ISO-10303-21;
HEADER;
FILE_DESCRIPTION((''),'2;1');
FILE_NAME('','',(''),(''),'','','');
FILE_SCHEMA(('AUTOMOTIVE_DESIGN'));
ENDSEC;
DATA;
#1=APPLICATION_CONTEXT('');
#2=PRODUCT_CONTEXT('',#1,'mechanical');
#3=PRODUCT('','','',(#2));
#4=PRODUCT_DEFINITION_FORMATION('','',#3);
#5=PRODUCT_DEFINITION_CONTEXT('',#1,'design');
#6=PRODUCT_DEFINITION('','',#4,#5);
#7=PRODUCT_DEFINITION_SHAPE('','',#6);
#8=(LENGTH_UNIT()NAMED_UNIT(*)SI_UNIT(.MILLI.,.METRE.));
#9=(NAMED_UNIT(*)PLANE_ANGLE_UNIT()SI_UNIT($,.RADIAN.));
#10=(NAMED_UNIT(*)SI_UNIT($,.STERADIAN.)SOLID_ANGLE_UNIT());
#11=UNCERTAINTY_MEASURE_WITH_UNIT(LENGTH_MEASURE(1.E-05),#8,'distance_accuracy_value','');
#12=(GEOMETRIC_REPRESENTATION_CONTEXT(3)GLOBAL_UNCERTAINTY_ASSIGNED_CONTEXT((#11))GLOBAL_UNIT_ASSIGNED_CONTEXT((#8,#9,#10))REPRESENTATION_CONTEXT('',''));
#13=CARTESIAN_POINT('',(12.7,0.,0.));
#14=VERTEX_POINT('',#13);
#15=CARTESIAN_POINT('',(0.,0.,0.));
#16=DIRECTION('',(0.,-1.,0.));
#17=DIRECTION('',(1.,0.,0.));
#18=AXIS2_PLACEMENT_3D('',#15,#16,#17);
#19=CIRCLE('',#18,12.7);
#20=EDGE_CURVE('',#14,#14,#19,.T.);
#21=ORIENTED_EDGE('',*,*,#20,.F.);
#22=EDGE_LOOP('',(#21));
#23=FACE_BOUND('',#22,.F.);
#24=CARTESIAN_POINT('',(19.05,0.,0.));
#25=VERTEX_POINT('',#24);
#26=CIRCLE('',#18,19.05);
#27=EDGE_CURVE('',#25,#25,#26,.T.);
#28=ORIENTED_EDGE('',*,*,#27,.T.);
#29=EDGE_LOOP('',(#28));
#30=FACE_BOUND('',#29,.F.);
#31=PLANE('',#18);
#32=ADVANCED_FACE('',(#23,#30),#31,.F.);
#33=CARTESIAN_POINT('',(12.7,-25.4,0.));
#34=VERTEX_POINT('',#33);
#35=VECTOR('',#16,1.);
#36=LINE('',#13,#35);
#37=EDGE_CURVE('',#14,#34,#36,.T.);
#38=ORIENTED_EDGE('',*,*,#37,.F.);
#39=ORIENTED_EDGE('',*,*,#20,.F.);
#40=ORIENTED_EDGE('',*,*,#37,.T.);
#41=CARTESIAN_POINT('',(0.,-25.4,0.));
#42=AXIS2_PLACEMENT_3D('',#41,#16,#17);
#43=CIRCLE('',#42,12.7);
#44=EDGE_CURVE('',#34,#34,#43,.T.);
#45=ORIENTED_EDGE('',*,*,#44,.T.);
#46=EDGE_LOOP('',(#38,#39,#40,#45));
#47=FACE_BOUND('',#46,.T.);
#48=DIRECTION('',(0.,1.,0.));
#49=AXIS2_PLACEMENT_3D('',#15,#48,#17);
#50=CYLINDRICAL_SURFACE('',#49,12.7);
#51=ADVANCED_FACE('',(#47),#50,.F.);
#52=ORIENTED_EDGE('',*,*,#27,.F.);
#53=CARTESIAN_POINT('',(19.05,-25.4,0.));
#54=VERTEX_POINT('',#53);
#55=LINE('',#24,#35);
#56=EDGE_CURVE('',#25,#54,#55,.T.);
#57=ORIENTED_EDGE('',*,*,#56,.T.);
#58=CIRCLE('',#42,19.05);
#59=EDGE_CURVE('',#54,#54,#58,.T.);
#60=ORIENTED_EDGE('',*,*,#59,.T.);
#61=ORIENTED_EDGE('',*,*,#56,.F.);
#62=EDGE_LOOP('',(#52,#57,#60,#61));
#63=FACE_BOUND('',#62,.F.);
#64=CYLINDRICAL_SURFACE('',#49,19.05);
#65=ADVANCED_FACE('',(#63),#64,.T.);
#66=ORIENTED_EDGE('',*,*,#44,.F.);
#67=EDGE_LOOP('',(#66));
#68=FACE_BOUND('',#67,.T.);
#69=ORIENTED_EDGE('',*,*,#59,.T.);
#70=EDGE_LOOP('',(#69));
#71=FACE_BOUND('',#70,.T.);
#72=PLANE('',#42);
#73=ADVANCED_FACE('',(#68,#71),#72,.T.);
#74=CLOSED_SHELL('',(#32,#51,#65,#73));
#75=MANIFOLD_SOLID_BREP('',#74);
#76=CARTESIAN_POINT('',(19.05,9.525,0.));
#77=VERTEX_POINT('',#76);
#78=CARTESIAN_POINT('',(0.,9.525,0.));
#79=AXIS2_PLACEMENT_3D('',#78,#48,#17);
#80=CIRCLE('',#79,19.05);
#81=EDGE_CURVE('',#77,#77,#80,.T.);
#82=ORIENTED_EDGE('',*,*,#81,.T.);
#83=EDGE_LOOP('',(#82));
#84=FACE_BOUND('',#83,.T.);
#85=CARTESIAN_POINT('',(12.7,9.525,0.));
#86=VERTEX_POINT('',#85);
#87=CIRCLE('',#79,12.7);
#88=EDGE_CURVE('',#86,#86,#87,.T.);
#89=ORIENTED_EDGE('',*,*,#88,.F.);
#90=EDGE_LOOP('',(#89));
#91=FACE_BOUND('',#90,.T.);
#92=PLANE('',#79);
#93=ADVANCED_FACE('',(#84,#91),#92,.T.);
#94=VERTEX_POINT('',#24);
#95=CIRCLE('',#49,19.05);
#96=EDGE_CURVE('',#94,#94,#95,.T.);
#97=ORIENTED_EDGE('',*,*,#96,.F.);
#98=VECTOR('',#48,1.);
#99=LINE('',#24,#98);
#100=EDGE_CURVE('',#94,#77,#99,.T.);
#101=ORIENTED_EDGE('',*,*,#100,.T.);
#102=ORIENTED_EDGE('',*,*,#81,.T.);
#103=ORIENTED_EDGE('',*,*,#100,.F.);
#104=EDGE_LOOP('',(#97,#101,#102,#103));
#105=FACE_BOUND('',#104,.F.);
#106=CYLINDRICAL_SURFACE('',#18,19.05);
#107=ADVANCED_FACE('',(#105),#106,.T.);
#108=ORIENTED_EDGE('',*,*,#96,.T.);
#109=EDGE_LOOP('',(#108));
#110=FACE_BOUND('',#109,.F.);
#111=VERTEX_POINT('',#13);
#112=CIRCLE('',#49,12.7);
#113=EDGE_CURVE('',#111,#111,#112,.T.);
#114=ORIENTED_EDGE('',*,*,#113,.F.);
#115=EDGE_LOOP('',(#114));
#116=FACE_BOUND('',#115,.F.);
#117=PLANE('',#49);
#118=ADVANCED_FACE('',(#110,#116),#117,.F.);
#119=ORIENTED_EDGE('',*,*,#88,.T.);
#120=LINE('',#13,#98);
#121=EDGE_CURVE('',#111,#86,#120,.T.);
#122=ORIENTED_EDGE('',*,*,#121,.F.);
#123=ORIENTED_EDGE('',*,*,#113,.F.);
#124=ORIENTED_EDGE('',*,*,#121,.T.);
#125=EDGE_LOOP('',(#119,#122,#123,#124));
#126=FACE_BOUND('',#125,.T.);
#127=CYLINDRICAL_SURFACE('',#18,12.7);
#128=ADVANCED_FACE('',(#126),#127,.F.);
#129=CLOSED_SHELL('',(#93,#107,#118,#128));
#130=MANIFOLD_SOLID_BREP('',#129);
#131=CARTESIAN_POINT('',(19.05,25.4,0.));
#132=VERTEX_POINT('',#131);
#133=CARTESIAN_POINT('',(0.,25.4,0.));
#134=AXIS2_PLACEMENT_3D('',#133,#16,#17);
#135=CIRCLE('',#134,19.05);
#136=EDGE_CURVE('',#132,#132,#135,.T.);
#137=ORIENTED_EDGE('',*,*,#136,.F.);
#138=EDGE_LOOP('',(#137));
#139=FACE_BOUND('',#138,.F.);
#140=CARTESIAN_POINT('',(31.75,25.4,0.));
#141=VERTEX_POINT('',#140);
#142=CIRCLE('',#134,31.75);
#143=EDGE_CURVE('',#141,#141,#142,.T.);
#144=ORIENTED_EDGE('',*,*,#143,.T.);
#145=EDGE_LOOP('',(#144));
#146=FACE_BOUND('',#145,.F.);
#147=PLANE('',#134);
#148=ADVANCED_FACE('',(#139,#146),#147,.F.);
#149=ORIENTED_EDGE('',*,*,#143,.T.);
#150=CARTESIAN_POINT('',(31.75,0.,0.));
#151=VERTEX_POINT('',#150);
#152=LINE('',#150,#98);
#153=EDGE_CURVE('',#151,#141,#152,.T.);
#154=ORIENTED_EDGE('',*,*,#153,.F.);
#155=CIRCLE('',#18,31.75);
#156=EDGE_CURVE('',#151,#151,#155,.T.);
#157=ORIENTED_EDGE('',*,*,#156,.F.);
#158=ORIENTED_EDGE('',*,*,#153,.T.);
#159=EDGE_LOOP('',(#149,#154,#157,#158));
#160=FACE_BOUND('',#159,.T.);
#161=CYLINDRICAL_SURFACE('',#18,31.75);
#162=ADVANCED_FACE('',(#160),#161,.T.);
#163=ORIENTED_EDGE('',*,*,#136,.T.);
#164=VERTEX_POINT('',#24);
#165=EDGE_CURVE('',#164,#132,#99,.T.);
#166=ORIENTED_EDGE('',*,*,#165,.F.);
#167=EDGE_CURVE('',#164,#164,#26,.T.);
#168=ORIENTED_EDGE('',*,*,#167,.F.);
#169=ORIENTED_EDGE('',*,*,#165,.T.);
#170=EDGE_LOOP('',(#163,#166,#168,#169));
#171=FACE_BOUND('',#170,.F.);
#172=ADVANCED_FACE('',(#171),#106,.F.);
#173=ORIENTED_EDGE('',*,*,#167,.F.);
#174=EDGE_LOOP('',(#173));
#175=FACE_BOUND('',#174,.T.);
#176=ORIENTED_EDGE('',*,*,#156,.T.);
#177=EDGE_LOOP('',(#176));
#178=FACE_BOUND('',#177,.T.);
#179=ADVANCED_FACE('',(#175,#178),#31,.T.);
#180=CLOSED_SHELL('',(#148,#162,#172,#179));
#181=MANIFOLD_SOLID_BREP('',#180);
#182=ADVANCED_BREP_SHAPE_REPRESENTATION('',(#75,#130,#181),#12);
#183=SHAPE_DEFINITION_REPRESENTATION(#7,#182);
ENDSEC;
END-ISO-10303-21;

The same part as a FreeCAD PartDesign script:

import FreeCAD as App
import Part
import Sketcher
from FreeCAD import Vector
Q = App.Units.Quantity

doc = App.newDocument("Part")
params = doc.addObject("Spreadsheet::Sheet", "Params")
for row, (alias, value) in enumerate([
    ("sketch1_diameter", "1 in"),
    ("sketch1_diameter2", "1.5 in"),
    ("pad1_length", "1 in"),
    ("sketch2_diameter", "2.5 in"),
    ("sketch2_diameter2", "1.5 in"),
    ("pad2_length", "1 in"),
    ("sketch3_diameter", "1 in"),
    ("sketch3_diameter2", "1.5 in"),
    ("pad3_length", "0.375 in"),
], start=1):
    params.set(f"A{row}", alias)
    params.set(f"B{row}", "=" + value)
    params.setAlias(f"B{row}", alias)

body = doc.addObject("PartDesign::Body", "Body")
body.AllowCompound = True

# Sketch on XZ plane
sketch1 = body.newObject("Sketcher::SketchObject", "Sketch")
sketch1.AttachmentSupport = (doc.getObject("XZ_Plane"), [""])
sketch1.MapMode = "FlatFace"
sketch1.addGeometry(Part.Circle(Vector(0, 0, 0), Vector(0, 0, 1), 19), False)
sketch1.addGeometry(Part.Circle(Vector(0, 0, 0), Vector(0, 0, 1), 13), False)
sketch1.addConstraint(Sketcher.Constraint("Coincident", 0, 3, -1, 1))
sketch1.addConstraint(Sketcher.Constraint("Coincident", 1, 3, -1, 1))
sketch1.addConstraint(Sketcher.Constraint("Diameter", 1, Q("1 in")))
sketch1.addConstraint(Sketcher.Constraint("Diameter", 0, Q("1.5 in")))
sketch1.setExpression("Constraints[2]", "Params.sketch1_diameter")
sketch1.setExpression("Constraints[3]", "Params.sketch1_diameter2")
pad1 = body.newObject("PartDesign::Pad", "Pad")
pad1.Profile = sketch1
pad1.setExpression("Length", "Params.pad1_length")

# Sketch on XZ plane
sketch2 = body.newObject("Sketcher::SketchObject", "Sketch001")
sketch2.AttachmentSupport = (doc.getObject("XZ_Plane"), [""])
sketch2.MapMode = "FlatFace"
sketch2.addGeometry(Part.Circle(Vector(0, 0, 0), Vector(0, 0, 1), 32), False)
sketch2.addGeometry(Part.Circle(Vector(0, 0, 0), Vector(0, 0, 1), 19), False)
sketch2.addConstraint(Sketcher.Constraint("Coincident", 0, 3, -1, 1))
sketch2.addConstraint(Sketcher.Constraint("Coincident", 1, 3, -1, 1))
sketch2.addConstraint(Sketcher.Constraint("Diameter", 0, Q("2.5 in")))
sketch2.addConstraint(Sketcher.Constraint("Diameter", 1, Q("1.5 in")))
sketch2.setExpression("Constraints[2]", "Params.sketch2_diameter")
sketch2.setExpression("Constraints[3]", "Params.sketch2_diameter2")
pad2 = body.newObject("PartDesign::Pad", "Pad001")
pad2.Profile = sketch2
pad2.setExpression("Length", "Params.pad2_length")
pad2.Reversed = True
body2 = doc.addObject("PartDesign::Body", "Body001")

# Sketch on XZ plane
sketch3 = body2.newObject("Sketcher::SketchObject", "Sketch002")
sketch3.AttachmentSupport = (doc.getObject("XZ_Plane001"), [""])
sketch3.MapMode = "FlatFace"
sketch3.addGeometry(Part.Circle(Vector(0, 0, 0), Vector(0, 0, 1), 19), False)
sketch3.addGeometry(Part.Circle(Vector(0, 0, 0), Vector(0, 0, 1), 13), False)
sketch3.addConstraint(Sketcher.Constraint("Coincident", 0, 3, -1, 1))
sketch3.addConstraint(Sketcher.Constraint("Coincident", 1, 3, -1, 1))
sketch3.addConstraint(Sketcher.Constraint("Diameter", 1, Q("1 in")))
sketch3.addConstraint(Sketcher.Constraint("Diameter", 0, Q("1.5 in")))
sketch3.setExpression("Constraints[2]", "Params.sketch3_diameter")
sketch3.setExpression("Constraints[3]", "Params.sketch3_diameter2")
pad3 = body2.newObject("PartDesign::Pad", "Pad002")
pad3.Profile = sketch3
pad3.setExpression("Length", "Params.pad3_length")
pad3.Reversed = True

doc.recompute()
